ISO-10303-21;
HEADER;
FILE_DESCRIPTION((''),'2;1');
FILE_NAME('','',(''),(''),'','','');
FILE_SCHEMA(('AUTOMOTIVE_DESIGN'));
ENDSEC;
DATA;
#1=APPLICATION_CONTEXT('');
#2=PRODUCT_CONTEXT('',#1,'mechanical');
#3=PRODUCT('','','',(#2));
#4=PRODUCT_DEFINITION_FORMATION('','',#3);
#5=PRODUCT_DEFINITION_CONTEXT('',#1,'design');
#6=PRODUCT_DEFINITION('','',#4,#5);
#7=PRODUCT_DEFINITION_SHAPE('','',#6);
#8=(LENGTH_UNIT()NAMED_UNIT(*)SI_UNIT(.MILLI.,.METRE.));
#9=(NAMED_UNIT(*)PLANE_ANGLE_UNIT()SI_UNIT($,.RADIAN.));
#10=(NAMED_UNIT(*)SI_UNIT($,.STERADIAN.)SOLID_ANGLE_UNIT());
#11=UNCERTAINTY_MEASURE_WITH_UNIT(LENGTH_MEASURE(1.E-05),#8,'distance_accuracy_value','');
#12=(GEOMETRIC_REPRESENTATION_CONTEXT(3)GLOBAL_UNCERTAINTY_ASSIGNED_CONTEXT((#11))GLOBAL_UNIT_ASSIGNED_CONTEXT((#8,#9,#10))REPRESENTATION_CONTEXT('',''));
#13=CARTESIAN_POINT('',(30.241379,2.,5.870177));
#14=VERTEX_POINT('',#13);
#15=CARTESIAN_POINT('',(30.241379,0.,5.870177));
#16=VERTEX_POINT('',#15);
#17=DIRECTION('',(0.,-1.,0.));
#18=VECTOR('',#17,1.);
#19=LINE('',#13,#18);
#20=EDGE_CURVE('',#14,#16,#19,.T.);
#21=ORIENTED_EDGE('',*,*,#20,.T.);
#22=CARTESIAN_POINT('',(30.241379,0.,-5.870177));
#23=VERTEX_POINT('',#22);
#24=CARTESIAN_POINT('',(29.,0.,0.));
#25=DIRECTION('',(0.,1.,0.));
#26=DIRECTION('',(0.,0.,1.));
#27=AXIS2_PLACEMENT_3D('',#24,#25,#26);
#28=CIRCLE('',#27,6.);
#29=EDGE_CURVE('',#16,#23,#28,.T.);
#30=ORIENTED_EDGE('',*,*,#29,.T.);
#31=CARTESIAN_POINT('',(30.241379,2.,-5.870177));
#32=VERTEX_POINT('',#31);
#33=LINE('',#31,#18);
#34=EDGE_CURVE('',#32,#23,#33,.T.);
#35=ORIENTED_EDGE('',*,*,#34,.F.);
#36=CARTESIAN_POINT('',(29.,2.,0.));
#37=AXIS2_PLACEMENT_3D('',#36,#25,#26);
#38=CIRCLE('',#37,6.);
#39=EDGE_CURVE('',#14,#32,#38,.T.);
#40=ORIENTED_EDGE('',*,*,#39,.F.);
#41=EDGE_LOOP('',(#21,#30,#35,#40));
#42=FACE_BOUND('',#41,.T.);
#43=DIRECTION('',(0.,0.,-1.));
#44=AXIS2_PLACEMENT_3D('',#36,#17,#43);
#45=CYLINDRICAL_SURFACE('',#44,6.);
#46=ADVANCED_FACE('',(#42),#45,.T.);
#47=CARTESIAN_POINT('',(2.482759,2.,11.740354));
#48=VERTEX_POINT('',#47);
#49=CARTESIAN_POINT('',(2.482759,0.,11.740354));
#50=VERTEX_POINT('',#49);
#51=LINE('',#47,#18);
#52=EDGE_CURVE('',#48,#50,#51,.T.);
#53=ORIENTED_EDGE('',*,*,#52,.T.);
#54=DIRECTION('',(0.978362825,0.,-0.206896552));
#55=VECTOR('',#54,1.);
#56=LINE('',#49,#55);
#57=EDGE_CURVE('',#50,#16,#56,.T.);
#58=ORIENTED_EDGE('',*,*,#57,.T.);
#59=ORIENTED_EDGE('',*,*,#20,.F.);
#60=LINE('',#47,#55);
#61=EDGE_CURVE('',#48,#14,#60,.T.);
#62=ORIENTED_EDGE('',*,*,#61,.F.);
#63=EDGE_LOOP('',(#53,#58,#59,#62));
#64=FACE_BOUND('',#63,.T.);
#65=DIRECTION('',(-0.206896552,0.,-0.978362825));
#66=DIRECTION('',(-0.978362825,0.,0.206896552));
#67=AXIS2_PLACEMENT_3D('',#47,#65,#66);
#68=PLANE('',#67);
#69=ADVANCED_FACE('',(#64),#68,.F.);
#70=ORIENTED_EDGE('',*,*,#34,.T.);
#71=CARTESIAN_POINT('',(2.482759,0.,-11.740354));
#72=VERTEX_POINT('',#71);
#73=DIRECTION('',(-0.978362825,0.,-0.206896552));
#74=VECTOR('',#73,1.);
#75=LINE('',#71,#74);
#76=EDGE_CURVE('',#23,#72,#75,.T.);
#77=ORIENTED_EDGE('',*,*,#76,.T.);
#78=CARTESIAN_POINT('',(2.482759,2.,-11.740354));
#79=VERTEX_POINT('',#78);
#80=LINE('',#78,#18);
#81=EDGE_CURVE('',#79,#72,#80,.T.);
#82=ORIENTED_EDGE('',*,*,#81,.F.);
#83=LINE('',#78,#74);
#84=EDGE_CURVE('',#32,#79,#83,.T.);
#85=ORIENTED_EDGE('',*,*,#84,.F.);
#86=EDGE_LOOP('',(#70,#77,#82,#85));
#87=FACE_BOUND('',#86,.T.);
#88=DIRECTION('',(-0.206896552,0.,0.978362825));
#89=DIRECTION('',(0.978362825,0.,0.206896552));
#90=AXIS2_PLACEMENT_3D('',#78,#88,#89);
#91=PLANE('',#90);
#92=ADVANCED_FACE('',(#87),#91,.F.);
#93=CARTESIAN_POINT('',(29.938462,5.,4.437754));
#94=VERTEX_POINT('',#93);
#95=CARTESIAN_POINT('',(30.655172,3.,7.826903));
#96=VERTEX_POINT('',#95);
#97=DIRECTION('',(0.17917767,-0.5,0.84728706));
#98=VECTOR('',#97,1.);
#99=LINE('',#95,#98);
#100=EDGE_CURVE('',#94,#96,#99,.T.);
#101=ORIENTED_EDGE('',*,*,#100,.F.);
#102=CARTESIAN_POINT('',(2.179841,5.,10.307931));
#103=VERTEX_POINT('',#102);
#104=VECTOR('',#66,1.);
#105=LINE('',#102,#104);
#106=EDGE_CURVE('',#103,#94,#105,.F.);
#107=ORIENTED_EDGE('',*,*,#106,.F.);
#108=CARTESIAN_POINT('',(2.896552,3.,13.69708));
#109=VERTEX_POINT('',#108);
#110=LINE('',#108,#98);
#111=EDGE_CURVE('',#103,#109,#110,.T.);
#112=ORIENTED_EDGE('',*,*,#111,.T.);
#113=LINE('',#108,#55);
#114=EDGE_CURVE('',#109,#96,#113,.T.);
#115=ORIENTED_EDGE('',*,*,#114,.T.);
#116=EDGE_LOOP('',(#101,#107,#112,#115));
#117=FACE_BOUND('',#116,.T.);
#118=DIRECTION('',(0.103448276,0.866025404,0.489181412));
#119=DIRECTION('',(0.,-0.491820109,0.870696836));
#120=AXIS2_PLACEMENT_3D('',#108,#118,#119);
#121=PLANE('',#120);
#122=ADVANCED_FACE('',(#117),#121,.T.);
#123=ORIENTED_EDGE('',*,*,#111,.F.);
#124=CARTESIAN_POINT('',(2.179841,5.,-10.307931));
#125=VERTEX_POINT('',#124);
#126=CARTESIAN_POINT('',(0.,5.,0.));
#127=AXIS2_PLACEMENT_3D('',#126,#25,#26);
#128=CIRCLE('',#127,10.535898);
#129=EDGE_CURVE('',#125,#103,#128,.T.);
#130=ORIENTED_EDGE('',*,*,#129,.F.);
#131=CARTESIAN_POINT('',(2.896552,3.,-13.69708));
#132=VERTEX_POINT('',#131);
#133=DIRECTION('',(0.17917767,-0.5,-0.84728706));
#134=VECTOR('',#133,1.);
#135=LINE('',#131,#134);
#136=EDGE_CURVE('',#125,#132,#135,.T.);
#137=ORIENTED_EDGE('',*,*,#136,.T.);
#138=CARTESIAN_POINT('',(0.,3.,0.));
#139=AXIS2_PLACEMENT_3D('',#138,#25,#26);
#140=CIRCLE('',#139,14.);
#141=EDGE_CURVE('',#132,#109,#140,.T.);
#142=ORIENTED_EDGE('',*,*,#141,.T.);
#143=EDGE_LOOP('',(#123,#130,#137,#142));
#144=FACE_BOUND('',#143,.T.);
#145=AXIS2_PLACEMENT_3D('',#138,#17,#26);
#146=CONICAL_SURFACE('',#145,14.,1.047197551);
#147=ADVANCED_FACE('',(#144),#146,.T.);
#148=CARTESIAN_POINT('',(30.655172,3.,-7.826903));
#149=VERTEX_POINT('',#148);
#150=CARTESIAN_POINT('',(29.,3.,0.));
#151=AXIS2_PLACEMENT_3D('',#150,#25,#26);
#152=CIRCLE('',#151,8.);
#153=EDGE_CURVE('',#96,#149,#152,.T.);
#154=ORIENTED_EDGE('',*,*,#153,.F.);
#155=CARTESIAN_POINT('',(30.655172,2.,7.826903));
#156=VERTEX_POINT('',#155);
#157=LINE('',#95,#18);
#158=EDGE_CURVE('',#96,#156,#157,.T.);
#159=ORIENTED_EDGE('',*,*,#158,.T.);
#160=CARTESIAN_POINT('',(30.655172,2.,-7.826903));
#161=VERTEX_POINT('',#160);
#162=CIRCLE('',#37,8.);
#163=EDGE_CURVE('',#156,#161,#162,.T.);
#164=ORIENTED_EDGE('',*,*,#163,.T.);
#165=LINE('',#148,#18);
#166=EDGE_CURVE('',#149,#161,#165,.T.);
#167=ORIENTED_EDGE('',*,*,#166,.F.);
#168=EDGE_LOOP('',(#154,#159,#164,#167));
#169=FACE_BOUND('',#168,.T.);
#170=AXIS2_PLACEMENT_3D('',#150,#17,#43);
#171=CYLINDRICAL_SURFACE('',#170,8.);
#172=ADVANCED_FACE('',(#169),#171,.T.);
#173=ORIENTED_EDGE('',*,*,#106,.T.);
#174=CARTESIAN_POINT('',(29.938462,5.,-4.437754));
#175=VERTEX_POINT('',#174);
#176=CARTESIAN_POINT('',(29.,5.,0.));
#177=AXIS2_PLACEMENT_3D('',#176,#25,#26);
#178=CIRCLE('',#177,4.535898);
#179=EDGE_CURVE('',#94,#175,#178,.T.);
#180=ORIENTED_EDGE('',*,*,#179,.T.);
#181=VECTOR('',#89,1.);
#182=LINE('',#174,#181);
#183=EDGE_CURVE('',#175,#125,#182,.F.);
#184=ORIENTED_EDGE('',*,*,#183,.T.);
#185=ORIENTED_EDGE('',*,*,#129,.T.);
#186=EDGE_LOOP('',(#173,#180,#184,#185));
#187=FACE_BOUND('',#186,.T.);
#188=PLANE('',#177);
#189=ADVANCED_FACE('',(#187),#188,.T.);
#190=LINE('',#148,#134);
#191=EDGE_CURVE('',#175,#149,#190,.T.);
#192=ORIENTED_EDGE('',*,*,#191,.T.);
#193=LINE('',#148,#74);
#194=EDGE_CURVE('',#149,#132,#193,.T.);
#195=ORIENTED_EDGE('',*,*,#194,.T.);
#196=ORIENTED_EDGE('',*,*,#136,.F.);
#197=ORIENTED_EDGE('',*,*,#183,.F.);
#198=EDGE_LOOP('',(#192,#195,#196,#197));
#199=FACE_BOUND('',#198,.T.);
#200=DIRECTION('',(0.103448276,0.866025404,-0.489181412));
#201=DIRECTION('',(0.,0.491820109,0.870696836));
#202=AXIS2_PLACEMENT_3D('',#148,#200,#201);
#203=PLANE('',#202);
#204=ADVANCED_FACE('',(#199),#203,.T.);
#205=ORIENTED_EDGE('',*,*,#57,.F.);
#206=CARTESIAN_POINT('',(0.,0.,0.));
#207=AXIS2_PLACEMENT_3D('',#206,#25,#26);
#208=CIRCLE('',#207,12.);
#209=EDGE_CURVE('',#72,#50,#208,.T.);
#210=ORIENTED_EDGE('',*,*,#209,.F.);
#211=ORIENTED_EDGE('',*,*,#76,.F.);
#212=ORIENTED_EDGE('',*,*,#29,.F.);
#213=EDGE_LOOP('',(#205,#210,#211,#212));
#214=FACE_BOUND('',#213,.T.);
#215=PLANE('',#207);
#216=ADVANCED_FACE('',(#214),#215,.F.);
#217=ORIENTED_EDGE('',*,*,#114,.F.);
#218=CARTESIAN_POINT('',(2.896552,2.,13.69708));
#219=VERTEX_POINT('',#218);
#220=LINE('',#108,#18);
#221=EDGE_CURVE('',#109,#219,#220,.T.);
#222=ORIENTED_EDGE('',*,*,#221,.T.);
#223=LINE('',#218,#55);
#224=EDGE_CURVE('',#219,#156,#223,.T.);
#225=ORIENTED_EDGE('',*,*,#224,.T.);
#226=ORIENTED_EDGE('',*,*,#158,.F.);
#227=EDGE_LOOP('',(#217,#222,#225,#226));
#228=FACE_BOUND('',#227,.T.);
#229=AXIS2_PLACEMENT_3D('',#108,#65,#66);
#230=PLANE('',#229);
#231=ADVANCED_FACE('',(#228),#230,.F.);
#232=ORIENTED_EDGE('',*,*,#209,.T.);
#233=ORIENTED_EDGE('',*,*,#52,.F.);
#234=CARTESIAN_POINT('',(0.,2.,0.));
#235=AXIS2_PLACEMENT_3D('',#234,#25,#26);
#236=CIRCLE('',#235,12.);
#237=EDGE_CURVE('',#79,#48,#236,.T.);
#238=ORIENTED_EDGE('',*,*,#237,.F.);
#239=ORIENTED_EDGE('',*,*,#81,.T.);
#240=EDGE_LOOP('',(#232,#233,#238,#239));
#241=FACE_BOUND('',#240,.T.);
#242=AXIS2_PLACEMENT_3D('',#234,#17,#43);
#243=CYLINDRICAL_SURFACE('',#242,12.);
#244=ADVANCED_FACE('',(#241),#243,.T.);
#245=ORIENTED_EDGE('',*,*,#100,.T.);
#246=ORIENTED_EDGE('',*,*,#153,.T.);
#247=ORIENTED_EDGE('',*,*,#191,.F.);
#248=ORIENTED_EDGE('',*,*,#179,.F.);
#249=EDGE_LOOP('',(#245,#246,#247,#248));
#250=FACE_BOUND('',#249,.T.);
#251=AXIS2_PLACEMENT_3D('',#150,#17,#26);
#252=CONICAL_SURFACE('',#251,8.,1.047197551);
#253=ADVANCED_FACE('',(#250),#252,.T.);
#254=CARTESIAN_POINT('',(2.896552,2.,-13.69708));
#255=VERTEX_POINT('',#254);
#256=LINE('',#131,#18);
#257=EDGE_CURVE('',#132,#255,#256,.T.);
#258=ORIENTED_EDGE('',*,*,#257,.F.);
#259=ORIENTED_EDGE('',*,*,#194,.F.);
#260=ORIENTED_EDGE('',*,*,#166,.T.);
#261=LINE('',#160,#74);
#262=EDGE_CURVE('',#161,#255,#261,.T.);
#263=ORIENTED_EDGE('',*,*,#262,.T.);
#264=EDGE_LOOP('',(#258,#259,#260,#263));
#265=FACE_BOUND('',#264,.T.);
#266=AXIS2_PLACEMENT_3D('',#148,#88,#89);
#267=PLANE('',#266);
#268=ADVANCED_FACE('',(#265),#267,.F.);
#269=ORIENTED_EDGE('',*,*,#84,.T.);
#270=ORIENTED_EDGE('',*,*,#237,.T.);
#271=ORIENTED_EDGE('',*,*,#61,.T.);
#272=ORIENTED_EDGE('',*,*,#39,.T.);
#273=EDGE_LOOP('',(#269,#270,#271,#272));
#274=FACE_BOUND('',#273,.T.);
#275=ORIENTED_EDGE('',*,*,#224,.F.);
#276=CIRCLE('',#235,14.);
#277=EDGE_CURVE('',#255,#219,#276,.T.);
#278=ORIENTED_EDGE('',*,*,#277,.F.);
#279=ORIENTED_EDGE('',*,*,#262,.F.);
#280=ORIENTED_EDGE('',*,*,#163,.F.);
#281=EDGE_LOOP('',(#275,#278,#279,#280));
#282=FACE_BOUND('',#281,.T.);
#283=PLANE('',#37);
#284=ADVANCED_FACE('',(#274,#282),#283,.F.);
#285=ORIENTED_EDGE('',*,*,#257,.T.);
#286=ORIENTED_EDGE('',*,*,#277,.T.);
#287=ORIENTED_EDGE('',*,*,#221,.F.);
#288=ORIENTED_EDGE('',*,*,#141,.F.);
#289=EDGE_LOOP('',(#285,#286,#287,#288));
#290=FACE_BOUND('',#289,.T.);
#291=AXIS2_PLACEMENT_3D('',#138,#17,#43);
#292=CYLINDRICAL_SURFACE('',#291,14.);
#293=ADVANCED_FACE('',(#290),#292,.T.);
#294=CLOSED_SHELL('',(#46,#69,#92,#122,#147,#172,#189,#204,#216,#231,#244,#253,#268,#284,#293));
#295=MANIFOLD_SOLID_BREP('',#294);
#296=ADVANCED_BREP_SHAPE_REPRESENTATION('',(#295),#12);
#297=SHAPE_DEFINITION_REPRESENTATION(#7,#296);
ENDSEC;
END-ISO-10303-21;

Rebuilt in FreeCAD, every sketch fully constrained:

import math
import FreeCAD as App
import Part
import Sketcher
from FreeCAD import Vector
Q = App.Units.Quantity

doc = App.newDocument("Part")
params = doc.addObject("Spreadsheet::Sheet", "Params")
for row, (alias, value) in enumerate([
    ("sketch1_radius", "12 mm"),
    ("sketch1_radius2", "6 mm"),
    ("pad1_length", "2 mm"),
    ("sketch2_radius", "14 mm"),
    ("sketch2_radius2", "8 mm"),
    ("pad2_length", "1 mm"),
    ("sketch3_radius", "14 mm"),
    ("sketch3_radius2", "8 mm"),
    ("pad3_length", "2 mm"),
    ("pad3_taper", "-60 deg"),
], start=1):
    params.set(f"A{row}", alias)
    params.set(f"B{row}", "=" + value)
    params.setAlias(f"B{row}", alias)

body = doc.addObject("PartDesign::Body", "Body")

# Sketch on XZ plane
sketch1 = body.newObject("Sketcher::SketchObject", "Sketch")
sketch1.AttachmentSupport = (doc.getObject("XZ_Plane"), [""])
sketch1.MapMode = "FlatFace"
sketch1.addGeometry([
    Part.LineSegment(Vector(30.241379, -5.870177, 0), Vector(2.482759, -11.740354, 0)),
    Part.ArcOfCircle(Part.Circle(Vector(0, 0, 0), Vector(0, 0, 1), 12), math.radians(78.059456), math.radians(281.940544)),
    Part.LineSegment(Vector(2.482759, 11.740354, 0), Vector(30.241379, 5.870177, 0)),
    Part.ArcOfCircle(Part.Circle(Vector(29, 0, 0), Vector(0, 0, 1), 6), math.radians(-78.059456), math.radians(78.059456)),
], False)
sketch1.addConstraint([
    Sketcher.Constraint("Tangent", 0, 2, 1, 2),
    Sketcher.Constraint("Tangent", 1, 1, 2, 1),
    Sketcher.Constraint("Tangent", 2, 2, 3, 2),
    Sketcher.Constraint("Tangent", 3, 1, 0, 1),
    Sketcher.Constraint("Coincident", 1, 3, -1, 1),
    Sketcher.Constraint("PointOnObject", 3, 3, -1),
    Sketcher.Constraint("Radius", 1, Q("12 mm")),
    Sketcher.Constraint("Radius", 3, Q("6 mm")),
    Sketcher.Constraint("DistanceX", -1, 1, 3, 3, Q("29 mm")),
])
sketch1.setExpression("Constraints[6]", "Params.sketch1_radius")
sketch1.setExpression("Constraints[7]", "Params.sketch1_radius2")
pad1 = body.newObject("PartDesign::Pad", "Pad")
pad1.Profile = sketch1
pad1.setExpression("Length", "Params.pad1_length")
pad1.Reversed = True

# Sketch on XZ plane
sketch2 = body.newObject("Sketcher::SketchObject", "Sketch001")
sketch2.AttachmentSupport = (doc.getObject("XZ_Plane"), [""])
sketch2.MapMode = "FlatFace"
sketch2.AttachmentOffset = App.Placement(Vector(0, 0, -2), App.Rotation())
sketch2.addGeometry([
    Part.LineSegment(Vector(30.655172, -7.826903, 0), Vector(2.896552, -13.69708, 0)),
    Part.ArcOfCircle(Part.Circle(Vector(0, 0, 0), Vector(0, 0, 1), 14), math.radians(78.059456), math.radians(281.940544)),
    Part.LineSegment(Vector(2.896552, 13.69708, 0), Vector(30.655172, 7.826903, 0)),
    Part.ArcOfCircle(Part.Circle(Vector(29, 0, 0), Vector(0, 0, 1), 8), math.radians(-78.059456), math.radians(78.059456)),
], False)
sketch2.addConstraint([
    Sketcher.Constraint("Tangent", 0, 2, 1, 2),
    Sketcher.Constraint("Tangent", 1, 1, 2, 1),
    Sketcher.Constraint("Tangent", 2, 2, 3, 2),
    Sketcher.Constraint("Tangent", 3, 1, 0, 1),
    Sketcher.Constraint("Coincident", 1, 3, -1, 1),
    Sketcher.Constraint("PointOnObject", 3, 3, -1),
    Sketcher.Constraint("Radius", 1, Q("14 mm")),
    Sketcher.Constraint("Radius", 3, Q("8 mm")),
    Sketcher.Constraint("DistanceX", -1, 1, 3, 3, Q("29 mm")),
])
sketch2.setExpression("Constraints[6]", "Params.sketch2_radius")
sketch2.setExpression("Constraints[7]", "Params.sketch2_radius2")
pad2 = body.newObject("PartDesign::Pad", "Pad001")
pad2.Profile = sketch2
pad2.setExpression("Length", "Params.pad2_length")
pad2.Reversed = True

# Sketch on XZ plane
sketch3 = body.newObject("Sketcher::SketchObject", "Sketch002")
sketch3.AttachmentSupport = (doc.getObject("XZ_Plane"), [""])
sketch3.MapMode = "FlatFace"
sketch3.AttachmentOffset = App.Placement(Vector(0, 0, -3), App.Rotation())
sketch3.addGeometry([
    Part.LineSegment(Vector(30.655172, -7.826903, 0), Vector(2.896552, -13.69708, 0)),
    Part.ArcOfCircle(Part.Circle(Vector(0, 0, 0), Vector(0, 0, 1), 14), math.radians(78.059456), math.radians(281.940544)),
    Part.LineSegment(Vector(2.896552, 13.69708, 0), Vector(30.655172, 7.826903, 0)),
    Part.ArcOfCircle(Part.Circle(Vector(29, 0, 0), Vector(0, 0, 1), 8), math.radians(-78.059456), math.radians(78.059456)),
], False)
sketch3.addConstraint([
    Sketcher.Constraint("Tangent", 0, 2, 1, 2),
    Sketcher.Constraint("Tangent", 1, 1, 2, 1),
    Sketcher.Constraint("Tangent", 2, 2, 3, 2),
    Sketcher.Constraint("Tangent", 3, 1, 0, 1),
    Sketcher.Constraint("Coincident", 1, 3, -1, 1),
    Sketcher.Constraint("PointOnObject", 3, 3, -1),
    Sketcher.Constraint("Radius", 1, Q("14 mm")),
    Sketcher.Constraint("Radius", 3, Q("8 mm")),
    Sketcher.Constraint("DistanceX", -1, 1, 3, 3, Q("29 mm")),
])
sketch3.setExpression("Constraints[6]", "Params.sketch3_radius")
sketch3.setExpression("Constraints[7]", "Params.sketch3_radius2")
pad3 = body.newObject("PartDesign::Pad", "Pad002")
pad3.Profile = sketch3
pad3.setExpression("Length", "Params.pad3_length")
pad3.Reversed = True
pad3.setExpression("TaperAngle", "Params.pad3_taper")

doc.recompute()
